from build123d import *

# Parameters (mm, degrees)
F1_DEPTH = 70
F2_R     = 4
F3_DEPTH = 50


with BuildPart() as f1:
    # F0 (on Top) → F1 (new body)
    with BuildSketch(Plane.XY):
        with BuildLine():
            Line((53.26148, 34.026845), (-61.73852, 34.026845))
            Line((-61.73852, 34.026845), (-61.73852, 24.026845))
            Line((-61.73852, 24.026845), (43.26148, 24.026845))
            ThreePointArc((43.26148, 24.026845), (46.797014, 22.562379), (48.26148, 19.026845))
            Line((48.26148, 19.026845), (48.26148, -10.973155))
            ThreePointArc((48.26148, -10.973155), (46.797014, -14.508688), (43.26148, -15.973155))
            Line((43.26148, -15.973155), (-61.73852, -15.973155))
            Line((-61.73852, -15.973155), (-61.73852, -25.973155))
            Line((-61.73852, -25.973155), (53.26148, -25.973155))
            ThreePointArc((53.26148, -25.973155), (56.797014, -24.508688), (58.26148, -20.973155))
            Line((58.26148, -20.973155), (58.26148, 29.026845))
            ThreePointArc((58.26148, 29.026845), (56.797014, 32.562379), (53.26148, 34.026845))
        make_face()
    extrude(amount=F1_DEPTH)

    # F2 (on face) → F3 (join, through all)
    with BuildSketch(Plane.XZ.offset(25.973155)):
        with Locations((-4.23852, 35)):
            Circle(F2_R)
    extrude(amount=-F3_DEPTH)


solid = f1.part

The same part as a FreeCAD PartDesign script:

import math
import FreeCAD as App
import Part
import Sketcher

V = App.Vector
Q = App.Units.Quantity

doc = App.newDocument("Part")
body = doc.addObject("PartDesign::Body", "Body")

# Sketch on XY plane
sketch1 = doc.addObject("Sketcher::SketchObject", "Sketch")
body.addObject(sketch1)
sketch1.AttachmentSupport = (doc.XY_Plane, [""])
sketch1.MapMode = "FlatFace"
sketch1.addGeometry([
    Part.LineSegment(V(53.26148, 34.026845, 0), V(-61.73852, 34.026845, 0)),  # 0
    Part.LineSegment(V(-61.73852, 34.026845, 0), V(-61.73852, 24.026845, 0)),  # 1
    Part.LineSegment(V(-61.73852, 24.026845, 0), V(43.26148, 24.026845, 0)),  # 2
    Part.ArcOfCircle(Part.Circle(V(43.26148, 19.026845, 0), V(0, 0, 1), 5), math.radians(-0.000004), math.radians(90.000004)),  # 3
    Part.LineSegment(V(48.26148, 19.026845, 0), V(48.26148, -10.973155, 0)),  # 4
    Part.ArcOfCircle(Part.Circle(V(43.261479, -10.973154, 0), V(0, 0, 1), 5.000001), math.radians(-89.999984), math.radians(-0.000016)),  # 5
    Part.LineSegment(V(43.26148, -15.973155, 0), V(-61.73852, -15.973155, 0)),  # 6
    Part.LineSegment(V(-61.73852, -15.973155, 0), V(-61.73852, -25.973155, 0)),  # 7
    Part.LineSegment(V(-61.73852, -25.973155, 0), V(53.26148, -25.973155, 0)),  # 8
    Part.ArcOfCircle(Part.Circle(V(53.261479, -20.973154, 0), V(0, 0, 1), 5.000001), math.radians(-89.999984), math.radians(-0.000016)),  # 9
    Part.LineSegment(V(58.26148, -20.973155, 0), V(58.26148, 29.026845, 0)),  # 10
    Part.ArcOfCircle(Part.Circle(V(53.26148, 29.026845, 0), V(0, 0, 1), 5), math.radians(-0.000004), math.radians(90.000004)),  # 11
], False)
sketch1.addConstraint([
    Sketcher.Constraint("Coincident", 0, 2, 1, 1),
    Sketcher.Constraint("Coincident", 1, 2, 2, 1),
    Sketcher.Constraint("Tangent", 2, 2, 3, 2),
    Sketcher.Constraint("Tangent", 3, 1, 4, 1),
    Sketcher.Constraint("Tangent", 4, 2, 5, 2),
    Sketcher.Constraint("Tangent", 5, 1, 6, 1),
    Sketcher.Constraint("Coincident", 6, 2, 7, 1),
    Sketcher.Constraint("Coincident", 7, 2, 8, 1),
    Sketcher.Constraint("Tangent", 8, 2, 9, 1),
    Sketcher.Constraint("Tangent", 9, 2, 10, 1),
    Sketcher.Constraint("Tangent", 10, 2, 11, 1),
    Sketcher.Constraint("Tangent", 11, 2, 0, 1),
    Sketcher.Constraint("Horizontal", 0),
    Sketcher.Constraint("Vertical", 1),
    Sketcher.Constraint("Horizontal", 2),
    Sketcher.Constraint("Vertical", 4),
    Sketcher.Constraint("Horizontal", 6),
    Sketcher.Constraint("Vertical", 7),
    Sketcher.Constraint("Horizontal", 8),
    Sketcher.Constraint("Vertical", 10),
    Sketcher.Constraint("Equal", 3, 5),
    Sketcher.Constraint("Equal", 5, 9),
    Sketcher.Constraint("Equal", 9, 11),
    Sketcher.Constraint("Vertical", 1, 2, 6, 2),
    Sketcher.Constraint("Equal", 1, 7),
    Sketcher.Constraint("Radius", 3, Q("5 mm")),
    Sketcher.Constraint("DistanceX", 0, 2, 0, 1, Q("115 mm")),
    Sketcher.Constraint("DistanceX", 2, 1, 2, 2, Q("105 mm")),
    Sketcher.Constraint("DistanceY", 1, 2, 1, 1, Q("10 mm")),
    Sketcher.Constraint("DistanceY", 4, 2, 4, 1, Q("30 mm")),
    Sketcher.Constraint("DistanceX", -1, 1, 3, 3, Q("43.26148 mm")),
    Sketcher.Constraint("DistanceY", -1, 1, 3, 3, Q("19.026845 mm")),
])
pad1 = doc.addObject("PartDesign::Pad", "Pad")
body.addObject(pad1)
pad1.Profile = sketch1
pad1.Length = 70

# Sketch on XZ plane
sketch2 = doc.addObject("Sketcher::SketchObject", "Sketch001")
body.addObject(sketch2)
sketch2.AttachmentSupport = (doc.XZ_Plane, [""])
sketch2.MapMode = "FlatFace"
sketch2.AttachmentOffset = App.Placement(V(0, 0, 25.973155), App.Rotation())
sketch2.addGeometry(Part.Circle(V(-4.23852, 35, 0), V(0, 0, 1), 4), False)
sketch2.addConstraint([
    Sketcher.Constraint("Diameter", 0, Q("8 mm")),
    Sketcher.Constraint("DistanceY", -1, 1, 0, 3, Q("35 mm")),
    Sketcher.Constraint("DistanceX", 0, 3, -1, 1, Q("4.23852 mm")),
])
pad2 = doc.addObject("PartDesign::Pad", "Pad001")
body.addObject(pad2)
pad2.Profile = sketch2
pad2.Type = "UpToLast"
pad2.Reversed = True

doc.recompute()
